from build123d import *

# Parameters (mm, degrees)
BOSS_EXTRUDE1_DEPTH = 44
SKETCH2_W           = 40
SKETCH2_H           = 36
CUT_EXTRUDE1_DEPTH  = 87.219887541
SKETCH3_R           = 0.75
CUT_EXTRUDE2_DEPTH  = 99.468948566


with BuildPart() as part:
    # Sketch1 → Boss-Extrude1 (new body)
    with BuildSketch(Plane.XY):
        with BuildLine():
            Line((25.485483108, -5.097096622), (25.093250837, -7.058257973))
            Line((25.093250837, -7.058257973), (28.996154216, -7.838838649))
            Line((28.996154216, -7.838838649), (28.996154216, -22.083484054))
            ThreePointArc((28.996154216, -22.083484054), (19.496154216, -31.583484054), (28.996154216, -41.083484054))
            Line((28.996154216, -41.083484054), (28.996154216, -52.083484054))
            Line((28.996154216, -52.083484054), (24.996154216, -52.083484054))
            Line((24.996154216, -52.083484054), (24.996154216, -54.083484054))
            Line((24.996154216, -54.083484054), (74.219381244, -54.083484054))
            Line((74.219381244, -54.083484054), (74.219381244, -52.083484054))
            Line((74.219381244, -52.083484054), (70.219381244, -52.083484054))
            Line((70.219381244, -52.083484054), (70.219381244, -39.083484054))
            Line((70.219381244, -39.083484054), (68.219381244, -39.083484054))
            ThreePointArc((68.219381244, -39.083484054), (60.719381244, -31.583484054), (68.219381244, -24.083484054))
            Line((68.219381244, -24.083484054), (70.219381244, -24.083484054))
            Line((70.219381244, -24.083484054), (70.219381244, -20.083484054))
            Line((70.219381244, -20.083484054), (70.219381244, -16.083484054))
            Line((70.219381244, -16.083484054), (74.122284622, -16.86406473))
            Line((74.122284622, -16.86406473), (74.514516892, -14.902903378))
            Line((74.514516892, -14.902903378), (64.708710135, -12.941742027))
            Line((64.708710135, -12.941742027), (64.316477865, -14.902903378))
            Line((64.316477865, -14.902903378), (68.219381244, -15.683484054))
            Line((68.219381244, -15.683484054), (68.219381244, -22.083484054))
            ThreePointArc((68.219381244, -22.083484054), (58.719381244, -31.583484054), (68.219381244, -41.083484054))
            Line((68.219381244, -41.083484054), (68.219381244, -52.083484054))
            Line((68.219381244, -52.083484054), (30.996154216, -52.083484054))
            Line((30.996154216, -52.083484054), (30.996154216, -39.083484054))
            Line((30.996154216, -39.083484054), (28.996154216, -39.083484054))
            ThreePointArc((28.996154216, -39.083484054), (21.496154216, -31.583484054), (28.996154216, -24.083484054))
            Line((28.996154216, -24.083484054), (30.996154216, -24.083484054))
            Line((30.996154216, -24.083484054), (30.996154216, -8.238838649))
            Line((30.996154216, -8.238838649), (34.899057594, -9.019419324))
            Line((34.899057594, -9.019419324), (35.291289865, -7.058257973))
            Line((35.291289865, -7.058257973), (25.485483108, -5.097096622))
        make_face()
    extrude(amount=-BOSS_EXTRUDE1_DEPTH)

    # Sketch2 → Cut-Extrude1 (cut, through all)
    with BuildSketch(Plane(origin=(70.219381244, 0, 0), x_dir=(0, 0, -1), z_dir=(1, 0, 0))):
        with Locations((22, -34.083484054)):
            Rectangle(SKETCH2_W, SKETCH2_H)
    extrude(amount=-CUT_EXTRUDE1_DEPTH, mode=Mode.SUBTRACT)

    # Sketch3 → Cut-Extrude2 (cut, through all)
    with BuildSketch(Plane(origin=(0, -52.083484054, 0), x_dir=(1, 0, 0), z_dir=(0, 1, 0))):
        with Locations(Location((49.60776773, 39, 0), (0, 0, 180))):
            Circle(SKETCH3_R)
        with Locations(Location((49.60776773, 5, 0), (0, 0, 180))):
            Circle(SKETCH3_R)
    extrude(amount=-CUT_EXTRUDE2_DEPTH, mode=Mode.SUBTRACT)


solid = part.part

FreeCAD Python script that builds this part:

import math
import FreeCAD as App
import Part
import Sketcher
from FreeCAD import Vector

doc = App.newDocument("Part")
params = doc.addObject("Spreadsheet::Sheet", "Params")
for row, (alias, value) in enumerate([
    ("sketch1_radius", "9.5 mm"),
    ("sketch1_radius2", "7.5 mm"),
    ("sketch1_width", "4 mm"),
    ("sketch1_width2", "2 mm"),
    ("sketch1_height", "11 mm"),
    ("pad1_length", "44 mm"),
    ("sketch2_width", "36 mm"),
    ("sketch2_height", "40 mm"),
    ("sketch3_diameter", "1.5 mm"),
], start=1):
    params.set(f"A{row}", alias)
    params.set(f"B{row}", "=" + value)
    params.setAlias(f"B{row}", alias)

body = doc.addObject("PartDesign::Body", "Body")

# Sketch on XY plane
sketch1 = body.newObject("Sketcher::SketchObject", "Sketch")
sketch1.AttachmentSupport = (doc.getObject("XY_Plane"), [""])
sketch1.MapMode = "FlatFace"
sketch1.addGeometry([
    Part.LineSegment(Vector(25.5, -5.1, 0), Vector(25.1, -7.1, 0)),  # 0
    Part.LineSegment(Vector(25.1, -7.1, 0), Vector(29, -7.8, 0)),  # 1
    Part.LineSegment(Vector(29, -7.8, 0), Vector(29, -22.1, 0)),  # 2
    Part.ArcOfCircle(Part.Circle(Vector(29, -31.6, 0), Vector(0, 0, 1), 9.5), math.radians(90), math.radians(270)),  # 3
    Part.LineSegment(Vector(29, -41.1, 0), Vector(29, -52.1, 0)),  # 4
    Part.LineSegment(Vector(29, -52.1, 0), Vector(25, -52.1, 0)),  # 5
    Part.LineSegment(Vector(25, -52.1, 0), Vector(25, -54.1, 0)),  # 6
    Part.LineSegment(Vector(25, -54.1, 0), Vector(74.2, -54.1, 0)),  # 7
    Part.LineSegment(Vector(74.2, -54.1, 0), Vector(74.2, -52.1, 0)),  # 8
    Part.LineSegment(Vector(74.2, -52.1, 0), Vector(70.2, -52.1, 0)),  # 9
    Part.LineSegment(Vector(70.2, -52.1, 0), Vector(70.2, -39.1, 0)),  # 10
    Part.LineSegment(Vector(70.2, -39.1, 0), Vector(68.2, -39.1, 0)),  # 11
    Part.ArcOfCircle(Part.Circle(Vector(68.2, -31.6, 0), Vector(0, 0, 1), 7.5), math.radians(90), math.radians(270)),  # 12
    Part.LineSegment(Vector(68.2, -24.1, 0), Vector(70.2, -24.1, 0)),  # 13
    Part.LineSegment(Vector(70.2, -24.1, 0), Vector(70.2, -16.1, 0)),  # 14
    Part.LineSegment(Vector(70.2, -16.1, 0), Vector(74.1, -16.9, 0)),  # 15
    Part.LineSegment(Vector(74.1, -16.9, 0), Vector(74.5, -14.9, 0)),  # 16
    Part.LineSegment(Vector(74.5, -14.9, 0), Vector(64.7, -12.9, 0)),  # 17
    Part.LineSegment(Vector(64.7, -12.9, 0), Vector(64.3, -14.9, 0)),  # 18
    Part.LineSegment(Vector(64.3, -14.9, 0), Vector(68.2, -15.7, 0)),  # 19
    Part.LineSegment(Vector(68.2, -15.7, 0), Vector(68.2, -22.1, 0)),  # 20
    Part.ArcOfCircle(Part.Circle(Vector(68.2, -31.6, 0), Vector(0, 0, 1), 9.5), math.radians(90), math.radians(270)),  # 21
    Part.LineSegment(Vector(68.2, -41.1, 0), Vector(68.2, -52.1, 0)),  # 22
    Part.LineSegment(Vector(68.2, -52.1, 0), Vector(31, -52.1, 0)),  # 23
    Part.LineSegment(Vector(31, -52.1, 0), Vector(31, -39.1, 0)),  # 24
    Part.LineSegment(Vector(31, -39.1, 0), Vector(29, -39.1, 0)),  # 25
    Part.ArcOfCircle(Part.Circle(Vector(29, -31.6, 0), Vector(0, 0, 1), 7.5), math.radians(90), math.radians(270)),  # 26
    Part.LineSegment(Vector(29, -24.1, 0), Vector(31, -24.1, 0)),  # 27
    Part.LineSegment(Vector(31, -24.1, 0), Vector(31, -8.2, 0)),  # 28
    Part.LineSegment(Vector(31, -8.2, 0), Vector(34.9, -9, 0)),  # 29
    Part.LineSegment(Vector(34.9, -9, 0), Vector(35.3, -7.1, 0)),  # 30
    Part.LineSegment(Vector(35.3, -7.1, 0), Vector(25.5, -5.1, 0)),  # 31
], False)
sketch1.addConstraint([
    Sketcher.Constraint("Coincident", 0, 2, 1, 1),
    Sketcher.Constraint("Coincident", 1, 2, 2, 1),
    Sketcher.Constraint("Coincident", 2, 2, 3, 1),
    Sketcher.Constraint("Coincident", 3, 2, 4, 1),
    Sketcher.Constraint("Coincident", 4, 2, 5, 1),
    Sketcher.Constraint("Coincident", 5, 2, 6, 1),
    Sketcher.Constraint("Coincident", 6, 2, 7, 1),
    Sketcher.Constraint("Coincident", 7, 2, 8, 1),
    Sketcher.Constraint("Coincident", 8, 2, 9, 1),
    Sketcher.Constraint("Coincident", 9, 2, 10, 1),
    Sketcher.Constraint("Coincident", 10, 2, 11, 1),
    Sketcher.Constraint("Tangent", 11, 2, 12, 2),
    Sketcher.Constraint("Tangent", 12, 1, 13, 1),
    Sketcher.Constraint("Coincident", 13, 2, 14, 1),
    Sketcher.Constraint("Coincident", 14, 2, 15, 1),
    Sketcher.Constraint("Coincident", 15, 2, 16, 1),
    Sketcher.Constraint("Coincident", 16, 2, 17, 1),
    Sketcher.Constraint("Coincident", 17, 2, 18, 1),
    Sketcher.Constraint("Coincident", 18, 2, 19, 1),
    Sketcher.Constraint("Coincident", 19, 2, 20, 1),
    Sketcher.Constraint("Coincident", 20, 2, 21, 1),
    Sketcher.Constraint("Coincident", 21, 2, 22, 1),
    Sketcher.Constraint("Coincident", 22, 2, 23, 1),
    Sketcher.Constraint("Coincident", 23, 2, 24, 1),
    Sketcher.Constraint("Coincident", 24, 2, 25, 1),
    Sketcher.Constraint("Tangent", 25, 2, 26, 2),
    Sketcher.Constraint("Tangent", 26, 1, 27, 1),
    Sketcher.Constraint("Coincident", 27, 2, 28, 1),
    Sketcher.Constraint("Coincident", 28, 2, 29, 1),
    Sketcher.Constraint("Coincident", 29, 2, 30, 1),
    Sketcher.Constraint("Coincident", 30, 2, 31, 1),
    Sketcher.Constraint("Coincident", 31, 2, 0, 1),
    Sketcher.Constraint("Vertical", 2),
    Sketcher.Constraint("Vertical", 4),
    Sketcher.Constraint("Horizontal", 5),
    Sketcher.Constraint("Vertical", 6),
    Sketcher.Constraint("Horizontal", 7),
    Sketcher.Constraint("Vertical", 8),
    Sketcher.Constraint("Horizontal", 9),
    Sketcher.Constraint("Vertical", 10),
    Sketcher.Constraint("Horizontal", 11),
    Sketcher.Constraint("Horizontal", 13),
    Sketcher.Constraint("Vertical", 14),
    Sketcher.Constraint("Vertical", 20),
    Sketcher.Constraint("Vertical", 22),
    Sketcher.Constraint("Horizontal", 23),
    Sketcher.Constraint("Vertical", 24),
    Sketcher.Constraint("Horizontal", 25),
    Sketcher.Constraint("Horizontal", 27),
    Sketcher.Constraint("Vertical", 28),
    Sketcher.Constraint("Coincident", 21, 3, 12, 3),
    Sketcher.Constraint("Coincident", 26, 3, 3, 3),
    Sketcher.Constraint("Equal", 3, 21),
    Sketcher.Constraint("Equal", 12, 26),
    Sketcher.Constraint("Perpendicular", 0, 1),
    Sketcher.Constraint("Parallel", 1, 15),
    Sketcher.Constraint("Perpendicular", 15, 16),
    Sketcher.Constraint("Perpendicular", 16, 17),
    Sketcher.Constraint("Perpendicular", 17, 18),
    Sketcher.Constraint("Perpendicular", 18, 19),
    Sketcher.Constraint("Parallel", 19, 29),
    Sketcher.Constraint("Perpendicular", 29, 30),
    Sketcher.Constraint("Perpendicular", 30, 31),
    Sketcher.Constraint("Horizontal", 3, 3, 12, 3),
    Sketcher.Constraint("Horizontal", 5, 2, 8, 2),
    Sketcher.Constraint("Horizontal", 16, 2, 18, 2),
    Sketcher.Constraint("Horizontal", 9, 2, 22, 2),
    Sketcher.Constraint("Horizontal", 0, 2, 30, 2),
    Sketcher.Constraint("Vertical", 26, 3, 1, 2),
    Sketcher.Constraint("Vertical", 2, 2, 3, 2),
    Sketcher.Constraint("Vertical", 10, 2, 13, 2),
    Sketcher.Constraint("Vertical", 12, 1, 19, 2),
    Sketcher.Constraint("Vertical", 20, 2, 21, 2),
    Sketcher.Constraint("Vertical", 24, 2, 27, 2),
    Sketcher.Constraint("Equal", 5, 9),
    Sketcher.Constraint("Equal", 13, 25),
    Sketcher.Constraint("Equal", 27, 6),
    Sketcher.Constraint("Equal", 1, 15),
    Sketcher.Constraint("Equal", 0, 16),
    Sketcher.Constraint("Equal", 16, 18),
    Sketcher.Constraint("Equal", 15, 19),
    Sketcher.Constraint("Equal", 19, 29),
    Sketcher.Constraint("Radius", 3, 9.5),
    Sketcher.Constraint("Radius", 12, 7.5),
    Sketcher.Constraint("DistanceX", 5, 2, 5, 1, 4.0),
    Sketcher.Constraint("DistanceX", 11, 2, 11, 1, 2.0),
    Sketcher.Constraint("DistanceY", 4, 2, 4, 1, 11.0),
    Sketcher.Constraint("DistanceY", 14, 1, 14, 2, 8.0),
    Sketcher.Constraint("Distance", 0, 2.0),
    Sketcher.Constraint("Distance", 17, 10.0),
    Sketcher.Constraint("DistanceX", 7, 1, 7, 2, 49.223227),
    Sketcher.Constraint("DistanceY", 2, 2, 2, 1, 14.244645),
    Sketcher.Constraint("DistanceX", -1, 1, 12, 3, 68.219381),
    Sketcher.Constraint("DistanceY", 1, 2, -1, 1, 7.838839),
])
sketch1.setExpression("Constraints[82]", "Params.sketch1_radius")
sketch1.setExpression("Constraints[83]", "Params.sketch1_radius2")
sketch1.setExpression("Constraints[84]", "Params.sketch1_width")
sketch1.setExpression("Constraints[85]", "Params.sketch1_width2")
sketch1.setExpression("Constraints[86]", "Params.sketch1_height")
pad1 = body.newObject("PartDesign::Pad", "Pad")
pad1.Profile = sketch1
pad1.setExpression("Length", "Params.pad1_length")
pad1.Reversed = True

# Sketch on YZ plane
sketch2 = body.newObject("Sketcher::SketchObject", "Sketch001")
sketch2.AttachmentSupport = (doc.getObject("YZ_Plane"), [""])
sketch2.MapMode = "FlatFace"
sketch2.AttachmentOffset = App.Placement(Vector(0, 0, 70.219381), App.Rotation())
sketch2.addGeometry([
    Part.LineSegment(Vector(-16, -2, 0), Vector(-52, -2, 0)),
    Part.LineSegment(Vector(-52, -2, 0), Vector(-52, -42, 0)),
    Part.LineSegment(Vector(-52, -42, 0), Vector(-16, -42, 0)),
    Part.LineSegment(Vector(-16, -42, 0), Vector(-16, -2, 0)),
], False)
sketch2.addConstraint([
    Sketcher.Constraint("Coincident", 0, 2, 1, 1),
    Sketcher.Constraint("Coincident", 1, 2, 2, 1),
    Sketcher.Constraint("Coincident", 2, 2, 3, 1),
    Sketcher.Constraint("Coincident", 3, 2, 0, 1),
    Sketcher.Constraint("Horizontal", 0),
    Sketcher.Constraint("Vertical", 1),
    Sketcher.Constraint("Horizontal", 2),
    Sketcher.Constraint("Vertical", 3),
    Sketcher.Constraint("DistanceX", 0, 2, 0, 1, 36.0),
    Sketcher.Constraint("DistanceY", 1, 2, 1, 1, 40.0),
    Sketcher.Constraint("DistanceY", 0, 2, -1, 1, 2.0),
    Sketcher.Constraint("DistanceX", 0, 2, -1, 1, 52.083484),
])
sketch2.setExpression("Constraints[8]", "Params.sketch2_width")
sketch2.setExpression("Constraints[9]", "Params.sketch2_height")
pocket1 = body.newObject("PartDesign::Pocket", "Pocket")
pocket1.Profile = sketch2
pocket1.Type = "ThroughAll"

# Sketch on XZ plane
sketch3 = body.newObject("Sketcher::SketchObject", "Sketch002")
sketch3.AttachmentSupport = (doc.getObject("XZ_Plane"), [""])
sketch3.MapMode = "FlatFace"
sketch3.AttachmentOffset = App.Placement(Vector(0, 0, 52.083484), App.Rotation())
sketch3.addGeometry([
    Part.Circle(Vector(49.6, -39, 0), Vector(0, 0, 1), 0.8),
    Part.Circle(Vector(49.6, -5, 0), Vector(0, 0, 1), 0.8),
], False)
sketch3.addConstraint([
    Sketcher.Constraint("Equal", 0, 1),
    Sketcher.Constraint("Vertical", 0, 3, 1, 3),
    Sketcher.Constraint("Diameter", 0, 1.5),
    Sketcher.Constraint("DistanceY", 0, 3, -1, 1, 39.0),
    Sketcher.Constraint("DistanceY", 1, 3, -1, 1, 5.0),
    Sketcher.Constraint("DistanceX", -1, 1, 0, 3, 49.607768),
])
sketch3.setExpression("Constraints[2]", "Params.sketch3_diameter")
pocket2 = body.newObject("PartDesign::Pocket", "Pocket001")
pocket2.Profile = sketch3
pocket2.Type = "ThroughAll"
pocket2.Reversed = True

doc.recompute()
